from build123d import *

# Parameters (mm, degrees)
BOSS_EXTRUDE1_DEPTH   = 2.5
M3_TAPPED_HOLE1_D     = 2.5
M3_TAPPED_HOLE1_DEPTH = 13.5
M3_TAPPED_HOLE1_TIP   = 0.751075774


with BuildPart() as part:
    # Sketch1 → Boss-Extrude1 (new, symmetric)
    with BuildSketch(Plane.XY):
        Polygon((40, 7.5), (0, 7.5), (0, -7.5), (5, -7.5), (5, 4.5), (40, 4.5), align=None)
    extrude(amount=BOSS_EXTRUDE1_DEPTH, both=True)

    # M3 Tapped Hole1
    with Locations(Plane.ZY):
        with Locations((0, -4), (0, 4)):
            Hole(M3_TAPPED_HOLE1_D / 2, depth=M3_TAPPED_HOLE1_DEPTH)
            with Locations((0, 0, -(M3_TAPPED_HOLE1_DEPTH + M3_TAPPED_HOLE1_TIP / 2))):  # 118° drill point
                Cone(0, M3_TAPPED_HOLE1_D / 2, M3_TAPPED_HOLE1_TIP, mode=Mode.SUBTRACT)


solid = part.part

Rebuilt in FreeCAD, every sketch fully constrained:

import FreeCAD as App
import Part
import Sketcher
from FreeCAD import Vector
Q = App.Units.Quantity


def add_polygon(sketch, points):
    """Adds a closed chain of lines whose ends are joined by coincident constraints."""
    first, n = sketch.GeometryCount, len(points)
    for a, b in zip(points, points[1:] + points[:1]):
        sketch.addGeometry(Part.LineSegment(App.Vector(*a, 0), App.Vector(*b, 0)), False)
    for i in range(n):
        sketch.addConstraint(Sketcher.Constraint("Coincident", first + i, 2, first + (i + 1) % n, 1))

doc = App.newDocument("Part")
params = doc.addObject("Spreadsheet::Sheet", "Params")
for row, (alias, value) in enumerate([
    ("sketch1_width", "40 mm"),
    ("sketch1_width2", "5 mm"),
    ("sketch1_height", "15 mm"),
    ("sketch1_height2", "12 mm"),
    ("pad1_length", "5 mm"),
    ("sketch2_diameter", "2.5 mm"),
    ("hole_diameter", "2.5 mm"),
    ("hole_depth", "13.5 mm"),
], start=1):
    params.set(f"A{row}", alias)
    params.set(f"B{row}", "=" + value)
    params.setAlias(f"B{row}", alias)

body = doc.addObject("PartDesign::Body", "Body")

# Sketch on XY plane
sketch1 = body.newObject("Sketcher::SketchObject", "Sketch")
sketch1.AttachmentSupport = (doc.getObject("XY_Plane"), [""])
sketch1.MapMode = "FlatFace"
add_polygon(sketch1, [(40, 7.5), (0, 7.5), (0, -7.5), (5, -7.5), (5, 4.5), (40, 4.5)])  # lines 0-5
sketch1.addConstraint([
    Sketcher.Constraint("Horizontal", 0),
    Sketcher.Constraint("Vertical", 1),
    Sketcher.Constraint("Horizontal", 2),
    Sketcher.Constraint("Vertical", 3),
    Sketcher.Constraint("Horizontal", 4),
    Sketcher.Constraint("Vertical", 5),
    Sketcher.Constraint("Symmetric", 0, 2, 1, 2, -1, 1),
    Sketcher.Constraint("DistanceX", 0, 2, 0, 1, Q("40 mm")),
    Sketcher.Constraint("DistanceX", 2, 1, 2, 2, Q("5 mm")),
    Sketcher.Constraint("DistanceY", 1, 2, 1, 1, Q("15 mm")),
    Sketcher.Constraint("DistanceY", 3, 1, 3, 2, Q("12 mm")),
])
sketch1.setExpression("Constraints[13]", "Params.sketch1_width")
sketch1.setExpression("Constraints[14]", "Params.sketch1_width2")
sketch1.setExpression("Constraints[15]", "Params.sketch1_height")
sketch1.setExpression("Constraints[16]", "Params.sketch1_height2")
pad1 = body.newObject("PartDesign::Pad", "Pad")
pad1.Profile = sketch1
pad1.setExpression("Length", "Params.pad1_length")
pad1.Midplane = True

# Sketch on YZ plane
sketch2 = body.newObject("Sketcher::SketchObject", "Sketch001")
sketch2.AttachmentSupport = (doc.getObject("YZ_Plane"), [""])
sketch2.MapMode = "FlatFace"
sketch2.addGeometry([
    Part.Circle(Vector(-4, 0, 0), Vector(0, 0, 1), 1.2),
    Part.Circle(Vector(4, 0, 0), Vector(0, 0, 1), 1.2),
], False)
sketch2.addConstraint([
    Sketcher.Constraint("Equal", 0, 1),
    Sketcher.Constraint("Symmetric", 0, 3, 1, 3, -1, 1),
    Sketcher.Constraint("PointOnObject", 0, 3, -1),
    Sketcher.Constraint("Diameter", 0, Q("2.5 mm")),
    Sketcher.Constraint("DistanceX", 0, 3, -1, 1, Q("4 mm")),
])
sketch2.setExpression("Constraints[3]", "Params.sketch2_diameter")
doc.recompute()
hole = body.newObject("PartDesign::Hole", "Hole")
hole.Profile = sketch2
hole.ThreadType = "None"
hole.setExpression("Diameter", "Params.hole_diameter")
hole.DepthType = "Dimension"
hole.setExpression("Depth", "Params.hole_depth")
hole.DrillPoint = "Angled"
hole.DrillPointAngle = 118
hole.Reversed = True

doc.recompute()
